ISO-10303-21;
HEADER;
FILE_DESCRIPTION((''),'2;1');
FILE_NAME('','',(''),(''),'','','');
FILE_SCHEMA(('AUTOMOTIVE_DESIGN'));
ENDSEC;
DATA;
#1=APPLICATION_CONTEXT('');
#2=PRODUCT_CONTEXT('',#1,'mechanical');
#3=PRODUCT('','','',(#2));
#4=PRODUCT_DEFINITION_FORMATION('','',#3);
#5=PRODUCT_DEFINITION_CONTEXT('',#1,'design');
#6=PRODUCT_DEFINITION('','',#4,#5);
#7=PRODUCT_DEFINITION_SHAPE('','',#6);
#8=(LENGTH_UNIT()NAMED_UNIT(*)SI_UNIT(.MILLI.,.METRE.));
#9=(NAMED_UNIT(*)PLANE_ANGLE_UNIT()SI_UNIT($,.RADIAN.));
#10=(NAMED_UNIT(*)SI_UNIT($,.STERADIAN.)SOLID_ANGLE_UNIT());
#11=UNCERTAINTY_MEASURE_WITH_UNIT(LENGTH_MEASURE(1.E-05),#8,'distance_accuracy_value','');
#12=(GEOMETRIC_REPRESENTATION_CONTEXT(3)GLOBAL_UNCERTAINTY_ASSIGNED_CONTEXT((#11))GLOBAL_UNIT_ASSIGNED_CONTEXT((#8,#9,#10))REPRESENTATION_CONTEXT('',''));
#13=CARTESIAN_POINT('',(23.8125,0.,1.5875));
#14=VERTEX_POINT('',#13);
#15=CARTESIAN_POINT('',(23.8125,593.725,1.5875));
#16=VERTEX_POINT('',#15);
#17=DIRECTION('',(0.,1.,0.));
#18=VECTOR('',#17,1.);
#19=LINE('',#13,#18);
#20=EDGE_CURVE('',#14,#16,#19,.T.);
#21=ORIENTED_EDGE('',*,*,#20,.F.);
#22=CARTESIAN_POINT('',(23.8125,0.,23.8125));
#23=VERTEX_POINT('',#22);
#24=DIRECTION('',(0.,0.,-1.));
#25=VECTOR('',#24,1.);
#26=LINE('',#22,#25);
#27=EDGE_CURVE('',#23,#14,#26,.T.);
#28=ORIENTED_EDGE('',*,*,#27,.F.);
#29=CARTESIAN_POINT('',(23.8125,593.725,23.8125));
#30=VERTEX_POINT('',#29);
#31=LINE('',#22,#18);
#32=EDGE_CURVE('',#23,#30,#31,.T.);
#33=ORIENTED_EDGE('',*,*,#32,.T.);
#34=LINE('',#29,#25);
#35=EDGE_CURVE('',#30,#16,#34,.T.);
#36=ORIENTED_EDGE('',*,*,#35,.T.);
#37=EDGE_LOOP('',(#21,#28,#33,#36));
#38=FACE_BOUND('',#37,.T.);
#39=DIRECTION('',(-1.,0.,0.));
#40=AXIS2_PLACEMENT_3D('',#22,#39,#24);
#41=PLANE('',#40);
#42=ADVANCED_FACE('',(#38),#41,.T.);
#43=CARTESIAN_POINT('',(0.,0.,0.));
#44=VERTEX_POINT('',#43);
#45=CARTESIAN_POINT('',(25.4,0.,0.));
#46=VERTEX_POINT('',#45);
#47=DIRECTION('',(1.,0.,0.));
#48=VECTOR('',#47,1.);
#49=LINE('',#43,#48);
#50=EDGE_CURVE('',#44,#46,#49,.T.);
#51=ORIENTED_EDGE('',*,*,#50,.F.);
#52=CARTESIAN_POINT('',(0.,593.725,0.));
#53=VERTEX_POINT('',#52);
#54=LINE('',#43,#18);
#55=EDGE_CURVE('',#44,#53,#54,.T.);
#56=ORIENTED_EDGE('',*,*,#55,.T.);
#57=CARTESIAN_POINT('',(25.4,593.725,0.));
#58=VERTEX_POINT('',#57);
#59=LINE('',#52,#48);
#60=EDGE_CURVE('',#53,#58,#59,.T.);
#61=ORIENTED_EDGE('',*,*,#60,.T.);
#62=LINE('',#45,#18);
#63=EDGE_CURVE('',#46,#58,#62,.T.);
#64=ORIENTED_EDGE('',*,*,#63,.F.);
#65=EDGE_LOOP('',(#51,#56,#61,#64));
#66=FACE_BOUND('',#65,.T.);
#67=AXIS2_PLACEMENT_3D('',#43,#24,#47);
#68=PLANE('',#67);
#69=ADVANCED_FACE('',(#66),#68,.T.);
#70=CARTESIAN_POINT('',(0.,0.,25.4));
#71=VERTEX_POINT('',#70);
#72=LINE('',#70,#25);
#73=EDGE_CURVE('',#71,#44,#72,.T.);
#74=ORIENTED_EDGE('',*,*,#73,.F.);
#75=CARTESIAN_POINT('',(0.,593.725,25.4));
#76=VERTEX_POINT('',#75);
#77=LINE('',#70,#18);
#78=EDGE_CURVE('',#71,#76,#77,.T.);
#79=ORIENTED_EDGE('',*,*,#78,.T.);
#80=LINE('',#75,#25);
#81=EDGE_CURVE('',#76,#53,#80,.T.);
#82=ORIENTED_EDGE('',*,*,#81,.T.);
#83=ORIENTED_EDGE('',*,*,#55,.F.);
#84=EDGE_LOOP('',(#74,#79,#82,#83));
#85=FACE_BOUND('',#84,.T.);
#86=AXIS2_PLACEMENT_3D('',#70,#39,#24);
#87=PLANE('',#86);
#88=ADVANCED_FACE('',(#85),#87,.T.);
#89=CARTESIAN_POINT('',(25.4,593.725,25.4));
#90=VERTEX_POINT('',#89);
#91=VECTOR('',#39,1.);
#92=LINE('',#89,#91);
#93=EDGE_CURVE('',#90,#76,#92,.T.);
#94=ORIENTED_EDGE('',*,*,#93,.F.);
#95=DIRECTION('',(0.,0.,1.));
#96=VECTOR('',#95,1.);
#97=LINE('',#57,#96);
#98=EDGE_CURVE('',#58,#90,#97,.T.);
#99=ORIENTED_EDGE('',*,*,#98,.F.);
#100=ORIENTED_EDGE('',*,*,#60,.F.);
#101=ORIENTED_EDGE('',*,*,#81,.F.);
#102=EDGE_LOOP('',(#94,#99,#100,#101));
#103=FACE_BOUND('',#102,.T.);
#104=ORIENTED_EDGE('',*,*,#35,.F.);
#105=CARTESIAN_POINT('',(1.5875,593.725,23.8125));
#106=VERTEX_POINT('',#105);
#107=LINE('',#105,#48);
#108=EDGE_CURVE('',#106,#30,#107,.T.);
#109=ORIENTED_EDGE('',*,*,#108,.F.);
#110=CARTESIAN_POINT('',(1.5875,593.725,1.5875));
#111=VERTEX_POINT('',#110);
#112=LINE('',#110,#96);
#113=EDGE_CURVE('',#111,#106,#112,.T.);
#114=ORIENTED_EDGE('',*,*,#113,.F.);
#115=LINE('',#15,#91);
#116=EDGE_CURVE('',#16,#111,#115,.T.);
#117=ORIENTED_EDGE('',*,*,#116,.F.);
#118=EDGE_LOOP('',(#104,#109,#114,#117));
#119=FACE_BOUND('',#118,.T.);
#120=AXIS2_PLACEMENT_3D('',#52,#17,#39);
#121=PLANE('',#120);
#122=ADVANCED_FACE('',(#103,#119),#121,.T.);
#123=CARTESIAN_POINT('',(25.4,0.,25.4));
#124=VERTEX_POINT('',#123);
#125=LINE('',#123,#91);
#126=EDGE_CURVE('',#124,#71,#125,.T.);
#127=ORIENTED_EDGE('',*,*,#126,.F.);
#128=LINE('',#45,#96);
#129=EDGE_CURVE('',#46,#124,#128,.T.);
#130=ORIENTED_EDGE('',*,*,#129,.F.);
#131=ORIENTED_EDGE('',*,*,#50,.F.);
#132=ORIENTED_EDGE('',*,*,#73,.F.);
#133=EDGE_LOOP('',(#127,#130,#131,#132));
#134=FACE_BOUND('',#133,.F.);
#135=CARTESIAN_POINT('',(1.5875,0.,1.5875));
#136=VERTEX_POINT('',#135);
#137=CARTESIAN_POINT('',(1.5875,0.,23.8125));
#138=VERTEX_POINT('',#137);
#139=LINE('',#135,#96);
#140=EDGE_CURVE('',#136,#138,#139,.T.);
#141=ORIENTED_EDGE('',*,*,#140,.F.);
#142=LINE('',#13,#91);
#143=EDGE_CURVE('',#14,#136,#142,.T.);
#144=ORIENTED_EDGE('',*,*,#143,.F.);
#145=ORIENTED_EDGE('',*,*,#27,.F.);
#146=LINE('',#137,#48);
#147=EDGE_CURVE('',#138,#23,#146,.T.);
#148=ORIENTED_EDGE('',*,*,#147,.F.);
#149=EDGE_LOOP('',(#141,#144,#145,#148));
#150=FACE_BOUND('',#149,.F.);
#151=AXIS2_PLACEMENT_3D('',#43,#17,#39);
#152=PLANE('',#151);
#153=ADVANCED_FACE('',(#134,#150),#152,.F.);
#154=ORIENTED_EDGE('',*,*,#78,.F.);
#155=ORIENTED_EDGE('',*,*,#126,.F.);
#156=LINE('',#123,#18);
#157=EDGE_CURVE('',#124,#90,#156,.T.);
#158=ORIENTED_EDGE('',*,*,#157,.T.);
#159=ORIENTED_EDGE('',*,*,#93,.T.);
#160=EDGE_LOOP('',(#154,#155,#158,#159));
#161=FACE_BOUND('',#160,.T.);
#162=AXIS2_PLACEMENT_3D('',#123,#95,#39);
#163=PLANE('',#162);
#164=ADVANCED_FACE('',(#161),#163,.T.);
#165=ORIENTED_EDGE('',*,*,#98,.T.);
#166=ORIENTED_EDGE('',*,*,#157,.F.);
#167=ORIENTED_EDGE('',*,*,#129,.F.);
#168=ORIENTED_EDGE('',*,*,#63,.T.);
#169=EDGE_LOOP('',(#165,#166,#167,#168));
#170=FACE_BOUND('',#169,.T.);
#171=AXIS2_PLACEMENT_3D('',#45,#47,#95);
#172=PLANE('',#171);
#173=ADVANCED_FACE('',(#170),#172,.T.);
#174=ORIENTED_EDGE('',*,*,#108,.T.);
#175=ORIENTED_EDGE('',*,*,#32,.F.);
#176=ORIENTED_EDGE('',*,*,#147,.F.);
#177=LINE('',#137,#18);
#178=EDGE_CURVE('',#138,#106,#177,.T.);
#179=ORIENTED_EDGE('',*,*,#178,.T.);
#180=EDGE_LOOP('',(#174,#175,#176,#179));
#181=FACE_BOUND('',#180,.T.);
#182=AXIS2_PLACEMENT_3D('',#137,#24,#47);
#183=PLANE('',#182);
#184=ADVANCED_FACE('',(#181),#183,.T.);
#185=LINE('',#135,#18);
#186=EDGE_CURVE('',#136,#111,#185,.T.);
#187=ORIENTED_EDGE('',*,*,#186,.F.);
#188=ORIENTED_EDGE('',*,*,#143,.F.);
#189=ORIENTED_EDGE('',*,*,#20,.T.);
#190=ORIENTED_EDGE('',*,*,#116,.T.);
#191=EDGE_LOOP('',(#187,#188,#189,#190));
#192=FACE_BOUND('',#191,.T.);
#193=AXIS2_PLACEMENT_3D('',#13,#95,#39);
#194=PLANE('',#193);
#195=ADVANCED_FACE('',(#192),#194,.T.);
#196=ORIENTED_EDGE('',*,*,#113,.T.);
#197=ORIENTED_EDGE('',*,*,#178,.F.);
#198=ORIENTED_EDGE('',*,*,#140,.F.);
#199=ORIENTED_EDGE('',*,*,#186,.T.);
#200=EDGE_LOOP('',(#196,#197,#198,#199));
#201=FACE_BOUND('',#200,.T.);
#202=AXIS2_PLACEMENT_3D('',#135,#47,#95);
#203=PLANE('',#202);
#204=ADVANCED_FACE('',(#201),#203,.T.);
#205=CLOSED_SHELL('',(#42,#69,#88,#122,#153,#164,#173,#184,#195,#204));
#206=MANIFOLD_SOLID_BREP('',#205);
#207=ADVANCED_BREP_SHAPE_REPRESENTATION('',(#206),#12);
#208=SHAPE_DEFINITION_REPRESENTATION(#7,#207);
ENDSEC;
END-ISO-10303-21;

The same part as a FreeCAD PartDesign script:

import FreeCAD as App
import Part
import Sketcher
Q = App.Units.Quantity


def add_polygon(sketch, points):
    """Adds a closed chain of lines whose ends are joined by coincident constraints."""
    first, n = sketch.GeometryCount, len(points)
    for a, b in zip(points, points[1:] + points[:1]):
        sketch.addGeometry(Part.LineSegment(App.Vector(*a, 0), App.Vector(*b, 0)), False)
    for i in range(n):
        sketch.addConstraint(Sketcher.Constraint("Coincident", first + i, 2, first + (i + 1) % n, 1))

doc = App.newDocument("Part")
params = doc.addObject("Spreadsheet::Sheet", "Params")
for row, (alias, value) in enumerate([
    ("sketch1_width", "1 in"),
    ("pad1_length", "23.375 in"),
], start=1):
    params.set(f"A{row}", alias)
    params.set(f"B{row}", "=" + value)
    params.setAlias(f"B{row}", alias)

body = doc.addObject("PartDesign::Body", "Body")

# Sketch on XZ plane
sketch1 = doc.addObject("Sketcher::SketchObject", "Sketch")
body.addObject(sketch1)
sketch1.AttachmentSupport = (doc.XZ_Plane, [""])
sketch1.MapMode = "FlatFace"
add_polygon(sketch1, [(25, 0), (0, 0), (0, 25), (25, 25)])  # lines 0-3
add_polygon(sketch1, [(24, 24), (2, 24), (2, 2), (24, 2)])  # lines 4-7
sketch1.addConstraint(Sketcher.Constraint("Horizontal", 0))
sketch1.addConstraint(Sketcher.Constraint("Vertical", 1))
sketch1.addConstraint(Sketcher.Constraint("Horizontal", 2))
sketch1.addConstraint(Sketcher.Constraint("Vertical", 3))
sketch1.addConstraint(Sketcher.Constraint("Horizontal", 4))
sketch1.addConstraint(Sketcher.Constraint("Vertical", 5))
sketch1.addConstraint(Sketcher.Constraint("Horizontal", 6))
sketch1.addConstraint(Sketcher.Constraint("Vertical", 7))
sketch1.addConstraint(Sketcher.Constraint("Coincident", 0, 2, -1, 1))
sketch1.addConstraint(Sketcher.Constraint("Equal", 2, 1))
sketch1.addConstraint(Sketcher.Constraint("Equal", 6, 5))
sketch1.addConstraint(Sketcher.Constraint("DistanceX", 0, 2, 0, 1, Q("1 in")))
sketch1.addConstraint(Sketcher.Constraint("DistanceX", -1, 1, 4, 2, Q("0.0625 in")))
sketch1.addConstraint(Sketcher.Constraint("DistanceY", -1, 1, 5, 2, Q("0.0625 in")))
sketch1.addConstraint(Sketcher.Constraint("DistanceY", 4, 2, 1, 2, Q("0.0625 in")))
sketch1.setExpression("Constraints[19]", "Params.sketch1_width")
pad1 = doc.addObject("PartDesign::Pad", "Pad")
body.addObject(pad1)
pad1.Profile = sketch1
pad1.setExpression("Length", "Params.pad1_length")
pad1.Reversed = True

doc.recompute()
